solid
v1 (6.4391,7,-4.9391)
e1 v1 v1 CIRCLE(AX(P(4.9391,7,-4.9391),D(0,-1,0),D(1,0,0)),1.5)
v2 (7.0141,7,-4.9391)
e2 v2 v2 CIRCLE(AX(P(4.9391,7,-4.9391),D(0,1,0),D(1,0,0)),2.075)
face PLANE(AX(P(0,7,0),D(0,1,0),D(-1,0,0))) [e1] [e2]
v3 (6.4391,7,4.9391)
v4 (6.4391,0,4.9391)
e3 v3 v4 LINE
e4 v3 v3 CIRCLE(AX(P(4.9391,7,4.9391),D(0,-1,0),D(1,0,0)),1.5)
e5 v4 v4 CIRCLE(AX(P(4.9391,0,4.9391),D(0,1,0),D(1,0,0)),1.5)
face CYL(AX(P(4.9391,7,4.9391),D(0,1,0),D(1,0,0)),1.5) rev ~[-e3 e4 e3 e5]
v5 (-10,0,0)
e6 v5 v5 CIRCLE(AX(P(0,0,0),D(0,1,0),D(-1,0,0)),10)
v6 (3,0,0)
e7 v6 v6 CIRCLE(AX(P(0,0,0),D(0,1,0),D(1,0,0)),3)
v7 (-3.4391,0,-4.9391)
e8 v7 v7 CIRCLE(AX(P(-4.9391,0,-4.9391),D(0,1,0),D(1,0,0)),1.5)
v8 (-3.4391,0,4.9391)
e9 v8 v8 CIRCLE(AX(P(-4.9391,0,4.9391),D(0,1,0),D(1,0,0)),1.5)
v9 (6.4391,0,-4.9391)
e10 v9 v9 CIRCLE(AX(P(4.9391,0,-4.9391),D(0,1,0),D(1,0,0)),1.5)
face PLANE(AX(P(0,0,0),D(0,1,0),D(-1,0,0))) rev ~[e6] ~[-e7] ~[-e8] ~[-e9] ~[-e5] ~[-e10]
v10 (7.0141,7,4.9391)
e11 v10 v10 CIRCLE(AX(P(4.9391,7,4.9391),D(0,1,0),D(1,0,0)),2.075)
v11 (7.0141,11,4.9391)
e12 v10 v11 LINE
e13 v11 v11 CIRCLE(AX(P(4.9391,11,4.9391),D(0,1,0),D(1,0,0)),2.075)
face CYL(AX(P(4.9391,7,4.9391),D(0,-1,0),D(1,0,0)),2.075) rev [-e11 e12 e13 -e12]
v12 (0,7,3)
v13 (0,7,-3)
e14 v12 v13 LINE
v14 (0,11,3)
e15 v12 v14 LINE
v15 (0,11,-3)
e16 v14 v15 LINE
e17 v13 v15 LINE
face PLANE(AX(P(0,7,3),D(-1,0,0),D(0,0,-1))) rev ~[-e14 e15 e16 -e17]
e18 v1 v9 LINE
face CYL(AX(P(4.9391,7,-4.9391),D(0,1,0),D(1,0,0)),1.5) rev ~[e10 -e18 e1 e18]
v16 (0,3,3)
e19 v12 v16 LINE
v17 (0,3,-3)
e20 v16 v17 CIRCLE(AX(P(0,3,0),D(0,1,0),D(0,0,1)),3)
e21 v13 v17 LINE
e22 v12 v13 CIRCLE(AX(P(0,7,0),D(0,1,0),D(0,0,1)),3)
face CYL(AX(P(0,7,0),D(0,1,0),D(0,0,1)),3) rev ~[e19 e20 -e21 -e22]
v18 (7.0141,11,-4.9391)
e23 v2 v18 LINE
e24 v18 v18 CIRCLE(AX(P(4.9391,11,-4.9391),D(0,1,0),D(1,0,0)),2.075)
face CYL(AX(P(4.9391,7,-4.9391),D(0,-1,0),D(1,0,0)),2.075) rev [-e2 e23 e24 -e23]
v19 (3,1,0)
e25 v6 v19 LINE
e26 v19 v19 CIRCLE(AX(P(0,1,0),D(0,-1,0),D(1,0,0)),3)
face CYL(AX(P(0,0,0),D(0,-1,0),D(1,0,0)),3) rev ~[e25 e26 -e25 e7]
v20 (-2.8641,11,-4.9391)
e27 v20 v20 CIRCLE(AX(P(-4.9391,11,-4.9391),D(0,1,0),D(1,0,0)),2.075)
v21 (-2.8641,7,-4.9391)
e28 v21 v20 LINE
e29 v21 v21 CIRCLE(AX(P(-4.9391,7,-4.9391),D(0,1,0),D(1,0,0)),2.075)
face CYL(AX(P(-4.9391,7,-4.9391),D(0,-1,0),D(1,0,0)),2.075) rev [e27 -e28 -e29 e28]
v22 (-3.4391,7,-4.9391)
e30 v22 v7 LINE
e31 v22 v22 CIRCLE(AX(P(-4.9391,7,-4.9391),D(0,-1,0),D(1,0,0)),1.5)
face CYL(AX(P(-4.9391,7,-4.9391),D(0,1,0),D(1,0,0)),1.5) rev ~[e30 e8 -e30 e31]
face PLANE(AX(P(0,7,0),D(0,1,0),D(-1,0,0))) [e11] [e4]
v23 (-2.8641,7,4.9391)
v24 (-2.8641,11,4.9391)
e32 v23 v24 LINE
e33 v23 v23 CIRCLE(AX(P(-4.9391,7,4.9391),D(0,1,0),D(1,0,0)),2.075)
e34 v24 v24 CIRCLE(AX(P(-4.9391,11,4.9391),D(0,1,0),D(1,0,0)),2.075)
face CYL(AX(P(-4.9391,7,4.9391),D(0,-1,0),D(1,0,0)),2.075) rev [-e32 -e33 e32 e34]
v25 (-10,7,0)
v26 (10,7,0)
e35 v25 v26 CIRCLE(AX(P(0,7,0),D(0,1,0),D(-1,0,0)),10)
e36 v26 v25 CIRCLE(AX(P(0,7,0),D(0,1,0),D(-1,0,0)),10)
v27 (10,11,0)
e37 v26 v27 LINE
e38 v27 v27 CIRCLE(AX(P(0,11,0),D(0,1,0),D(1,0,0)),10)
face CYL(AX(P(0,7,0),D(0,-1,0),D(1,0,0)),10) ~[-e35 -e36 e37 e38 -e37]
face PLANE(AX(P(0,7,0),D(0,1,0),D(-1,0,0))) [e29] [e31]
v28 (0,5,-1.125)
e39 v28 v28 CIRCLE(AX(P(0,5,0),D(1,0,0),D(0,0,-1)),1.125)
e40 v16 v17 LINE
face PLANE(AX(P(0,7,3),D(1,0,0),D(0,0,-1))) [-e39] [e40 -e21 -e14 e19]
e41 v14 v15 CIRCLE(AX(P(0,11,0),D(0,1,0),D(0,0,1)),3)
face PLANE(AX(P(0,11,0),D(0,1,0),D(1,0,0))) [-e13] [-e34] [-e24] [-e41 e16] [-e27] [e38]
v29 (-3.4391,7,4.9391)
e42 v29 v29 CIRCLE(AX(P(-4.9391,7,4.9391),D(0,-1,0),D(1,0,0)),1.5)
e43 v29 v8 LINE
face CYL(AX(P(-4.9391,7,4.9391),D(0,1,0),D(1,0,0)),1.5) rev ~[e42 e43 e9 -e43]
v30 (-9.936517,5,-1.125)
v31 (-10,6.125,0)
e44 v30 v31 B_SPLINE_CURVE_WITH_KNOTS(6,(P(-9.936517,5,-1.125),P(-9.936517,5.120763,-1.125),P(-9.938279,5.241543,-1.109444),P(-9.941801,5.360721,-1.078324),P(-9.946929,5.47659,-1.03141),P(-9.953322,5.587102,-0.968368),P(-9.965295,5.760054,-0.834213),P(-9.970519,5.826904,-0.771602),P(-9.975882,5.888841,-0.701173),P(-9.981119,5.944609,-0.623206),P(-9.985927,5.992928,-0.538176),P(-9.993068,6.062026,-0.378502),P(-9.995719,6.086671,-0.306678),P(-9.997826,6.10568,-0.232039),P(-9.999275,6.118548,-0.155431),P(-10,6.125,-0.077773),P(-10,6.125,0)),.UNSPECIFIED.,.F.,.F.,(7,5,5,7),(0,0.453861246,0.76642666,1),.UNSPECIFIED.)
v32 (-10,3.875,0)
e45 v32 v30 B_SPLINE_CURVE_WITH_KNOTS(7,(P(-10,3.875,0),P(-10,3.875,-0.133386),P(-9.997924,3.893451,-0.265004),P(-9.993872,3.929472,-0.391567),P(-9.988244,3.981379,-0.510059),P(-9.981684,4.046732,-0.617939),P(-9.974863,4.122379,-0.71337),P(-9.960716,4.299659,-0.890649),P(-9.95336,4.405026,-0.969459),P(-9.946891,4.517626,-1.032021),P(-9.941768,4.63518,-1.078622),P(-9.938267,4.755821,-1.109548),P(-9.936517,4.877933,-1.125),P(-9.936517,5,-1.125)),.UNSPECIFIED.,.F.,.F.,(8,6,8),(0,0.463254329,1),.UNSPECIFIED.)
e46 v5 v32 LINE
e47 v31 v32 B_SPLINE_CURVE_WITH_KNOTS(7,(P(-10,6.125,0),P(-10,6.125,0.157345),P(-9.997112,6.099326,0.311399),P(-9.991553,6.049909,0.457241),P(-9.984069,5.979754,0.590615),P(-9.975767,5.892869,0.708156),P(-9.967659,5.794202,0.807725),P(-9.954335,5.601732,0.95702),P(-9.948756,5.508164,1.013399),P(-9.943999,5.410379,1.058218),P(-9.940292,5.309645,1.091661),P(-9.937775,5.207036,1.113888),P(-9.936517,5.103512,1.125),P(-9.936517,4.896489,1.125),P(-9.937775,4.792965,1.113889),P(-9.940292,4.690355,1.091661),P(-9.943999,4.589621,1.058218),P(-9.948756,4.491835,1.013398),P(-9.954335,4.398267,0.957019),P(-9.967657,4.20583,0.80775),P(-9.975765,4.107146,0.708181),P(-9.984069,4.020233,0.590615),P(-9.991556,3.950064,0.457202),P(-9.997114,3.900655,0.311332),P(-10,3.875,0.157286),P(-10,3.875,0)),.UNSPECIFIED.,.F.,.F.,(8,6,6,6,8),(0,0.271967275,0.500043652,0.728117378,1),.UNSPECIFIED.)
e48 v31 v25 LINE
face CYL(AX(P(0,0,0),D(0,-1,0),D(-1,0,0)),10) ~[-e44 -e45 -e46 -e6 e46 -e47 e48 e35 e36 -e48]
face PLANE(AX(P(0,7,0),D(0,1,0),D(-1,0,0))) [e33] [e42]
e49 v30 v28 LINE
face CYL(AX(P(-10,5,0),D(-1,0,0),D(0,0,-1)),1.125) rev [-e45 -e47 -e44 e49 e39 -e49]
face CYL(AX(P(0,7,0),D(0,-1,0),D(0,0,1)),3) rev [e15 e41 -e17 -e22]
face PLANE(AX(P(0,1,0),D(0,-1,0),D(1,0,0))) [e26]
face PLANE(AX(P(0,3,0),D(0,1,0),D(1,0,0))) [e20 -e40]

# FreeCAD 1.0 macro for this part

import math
import FreeCAD as App
import Part
import Sketcher
Q = App.Units.Quantity

doc = App.newDocument("Part")
params = doc.addObject("Spreadsheet::Sheet", "Params")
for row, (alias, value) in enumerate([
    ("sketch1_diameter", "20 mm"),
    ("pad1_length", "7 mm"),
    ("sketch2_radius", "3 mm"),
    ("pocket1_length", "4 mm"),
    ("sketch3_diameter", "6 mm"),
    ("pocket2_length", "1 mm"),
    ("sketch4_diameter", "2.25 mm"),
    ("pocket3_length", "10 mm"),
    ("sketch5_diameter", "3 mm"),
    ("pocket4_length", "7 mm"),
    ("sketch6_diameter", "4.15 mm"),
    ("sketch6_diameter2", "20 mm"),
    ("sketch6_radius", "3 mm"),
    ("pad2_length", "4 mm"),
], start=1):
    params.set(f"A{row}", alias)
    params.set(f"B{row}", "=" + value)
    params.setAlias(f"B{row}", alias)

body = doc.addObject("PartDesign::Body", "Body")

# Sketch on XZ plane
sketch1 = body.newObject("Sketcher::SketchObject", "Sketch")
sketch1.AttachmentSupport = (doc.getObject("XZ_Plane"), [""])
sketch1.MapMode = "FlatFace"
sketch1.addGeometry(Part.Circle(App.Vector(0, 0, 0), App.Vector(0, 0, 1), 10), False)
sketch1.addConstraint([
    Sketcher.Constraint("Coincident", 0, 3, -1, 1),
    Sketcher.Constraint("Diameter", 0, Q("20 mm")),
])
sketch1.setExpression("Constraints[1]", "Params.sketch1_diameter")
pad1 = body.newObject("PartDesign::Pad", "Pad")
pad1.Profile = sketch1
pad1.setExpression("Length", "Params.pad1_length")
pad1.Reversed = True

# Sketch on XZ plane
sketch2 = body.newObject("Sketcher::SketchObject", "Sketch001")
sketch2.AttachmentSupport = (doc.getObject("XZ_Plane"), [""])
sketch2.MapMode = "FlatFace"
sketch2.AttachmentOffset = App.Placement(App.Vector(0, 0, -7), App.Rotation())
sketch2.addGeometry([
    Part.LineSegment(App.Vector(0, -3, 0), App.Vector(0, 3, 0)),
    Part.ArcOfCircle(Part.Circle(App.Vector(0, 0, 0), App.Vector(0, 0, 1), 3), math.radians(-90), math.radians(90)),
], False)
sketch2.addConstraint([
    Sketcher.Constraint("Coincident", 0, 1, 1, 1),
    Sketcher.Constraint("Coincident", 1, 2, 0, 2),
    Sketcher.Constraint("Vertical", 0),
    Sketcher.Constraint("Coincident", 1, 3, -1, 1),
    Sketcher.Constraint("PointOnObject", 0, 1, -2),
    Sketcher.Constraint("Radius", 1, Q("3 mm")),
])
sketch2.setExpression("Constraints[5]", "Params.sketch2_radius")
pocket1 = body.newObject("PartDesign::Pocket", "Pocket")
pocket1.Profile = sketch2
pocket1.setExpression("Length", "Params.pocket1_length")
pocket1.Reversed = True

# Sketch on XZ plane
sketch3 = body.newObject("Sketcher::SketchObject", "Sketch002")
sketch3.AttachmentSupport = (doc.getObject("XZ_Plane"), [""])
sketch3.MapMode = "FlatFace"
sketch3.addGeometry(Part.Circle(App.Vector(0, 0, 0), App.Vector(0, 0, 1), 3), False)
sketch3.addConstraint([
    Sketcher.Constraint("Coincident", 0, 3, -1, 1),
    Sketcher.Constraint("Diameter", 0, Q("6 mm")),
])
sketch3.setExpression("Constraints[1]", "Params.sketch3_diameter")
pocket2 = body.newObject("PartDesign::Pocket", "Pocket001")
pocket2.Profile = sketch3
pocket2.setExpression("Length", "Params.pocket2_length")

# Sketch on YZ plane
sketch4 = body.newObject("Sketcher::SketchObject", "Sketch003")
sketch4.AttachmentSupport = (doc.getObject("YZ_Plane"), [""])
sketch4.MapMode = "FlatFace"
sketch4.AttachmentOffset = App.Placement(App.Vector(0, 0, -10), App.Rotation())
sketch4.addGeometry(Part.Circle(App.Vector(5, 0, 0), App.Vector(0, 0, 1), 1.1), False)
sketch4.addConstraint([
    Sketcher.Constraint("PointOnObject", 0, 3, -1),
    Sketcher.Constraint("Diameter", 0, Q("2.25 mm")),
    Sketcher.Constraint("DistanceX", -1, 1, 0, 3, Q("5 mm")),
])
sketch4.setExpression("Constraints[1]", "Params.sketch4_diameter")
pocket3 = body.newObject("PartDesign::Pocket", "Pocket002")
pocket3.Profile = sketch4
pocket3.setExpression("Length", "Params.pocket3_length")
pocket3.Reversed = True

# Sketch on XZ plane
sketch5 = body.newObject("Sketcher::SketchObject", "Sketch004")
sketch5.AttachmentSupport = (doc.getObject("XZ_Plane"), [""])
sketch5.MapMode = "FlatFace"
sketch5.AttachmentOffset = App.Placement(App.Vector(0, 0, -7), App.Rotation())
sketch5.addGeometry([
    Part.Circle(App.Vector(4.9, -4.9, 0), App.Vector(0, 0, 1), 1.5),
    Part.Circle(App.Vector(4.9, 4.9, 0), App.Vector(0, 0, 1), 1.5),
    Part.Circle(App.Vector(-4.9, -4.9, 0), App.Vector(0, 0, 1), 1.5),
    Part.Circle(App.Vector(-4.9, 4.9, 0), App.Vector(0, 0, 1), 1.5),
], False)
sketch5.addConstraint([
    Sketcher.Constraint("Equal", 0, 1),
    Sketcher.Constraint("Equal", 1, 2),
    Sketcher.Constraint("Equal", 2, 3),
    Sketcher.Constraint("Symmetric", 1, 3, 2, 3, -1, 1),
    Sketcher.Constraint("Symmetric", 0, 3, 3, 3, -1, 1),
    Sketcher.Constraint("Symmetric", 0, 3, 2, 3, -2),
    Sketcher.Constraint("Diameter", 0, Q("3 mm")),
    Sketcher.Constraint("DistanceX", -1, 1, 0, 3, Q("4.939 mm")),
    Sketcher.Constraint("DistanceY", 0, 3, -1, 1, Q("4.939 mm")),
])
sketch5.setExpression("Constraints[6]", "Params.sketch5_diameter")
pocket4 = body.newObject("PartDesign::Pocket", "Pocket003")
pocket4.Profile = sketch5
pocket4.setExpression("Length", "Params.pocket4_length")
pocket4.Reversed = True

# Sketch on XZ plane
sketch6 = body.newObject("Sketcher::SketchObject", "Sketch005")
sketch6.AttachmentSupport = (doc.getObject("XZ_Plane"), [""])
sketch6.MapMode = "FlatFace"
sketch6.AttachmentOffset = App.Placement(App.Vector(0, 0, -7), App.Rotation())
sketch6.addGeometry([
    Part.Circle(App.Vector(0, 0, 0), App.Vector(0, 0, 1), 10),  # 0
    Part.Circle(App.Vector(-4.9, 4.9, 0), App.Vector(0, 0, 1), 2.1),  # 1
    Part.Circle(App.Vector(4.9, 4.9, 0), App.Vector(0, 0, 1), 2.1),  # 2
    Part.Circle(App.Vector(-4.9, -4.9, 0), App.Vector(0, 0, 1), 2.1),  # 3
    Part.ArcOfCircle(Part.Circle(App.Vector(0, 0, 0), App.Vector(0, 0, 1), 3), math.radians(-90), math.radians(90)),  # 4
    Part.LineSegment(App.Vector(0, 3, 0), App.Vector(0, -3, 0)),  # 5
    Part.Circle(App.Vector(4.9, -4.9, 0), App.Vector(0, 0, 1), 2.1),  # 6
], False)
sketch6.addConstraint([
    Sketcher.Constraint("Coincident", 4, 1, 5, 2),
    Sketcher.Constraint("Coincident", 5, 1, 4, 2),
    Sketcher.Constraint("Vertical", 5),
    Sketcher.Constraint("Coincident", 0, 3, -1, 1),
    Sketcher.Constraint("Coincident", 4, 3, -1, 1),
    Sketcher.Constraint("Equal", 1, 2),
    Sketcher.Constraint("Equal", 2, 3),
    Sketcher.Constraint("Equal", 3, 6),
    Sketcher.Constraint("Symmetric", 2, 3, 3, 3, -1, 1),
    Sketcher.Constraint("Symmetric", 1, 3, 6, 3, -1, 1),
    Sketcher.Constraint("Symmetric", 1, 3, 2, 3, -2),
    Sketcher.Constraint("PointOnObject", 4, 1, -2),
    Sketcher.Constraint("Diameter", 1, Q("4.15 mm")),
    Sketcher.Constraint("Diameter", 0, Q("20 mm")),
    Sketcher.Constraint("Radius", 4, Q("3 mm")),
    Sketcher.Constraint("DistanceX", 1, 3, -1, 1, Q("4.939 mm")),
    Sketcher.Constraint("DistanceY", -1, 1, 1, 3, Q("4.939 mm")),
])
sketch6.setExpression("Constraints[12]", "Params.sketch6_diameter")
sketch6.setExpression("Constraints[13]", "Params.sketch6_diameter2")
sketch6.setExpression("Constraints[14]", "Params.sketch6_radius")
pad2 = body.newObject("PartDesign::Pad", "Pad001")
pad2.Profile = sketch6
pad2.setExpression("Length", "Params.pad2_length")
pad2.Reversed = True

doc.recompute()
